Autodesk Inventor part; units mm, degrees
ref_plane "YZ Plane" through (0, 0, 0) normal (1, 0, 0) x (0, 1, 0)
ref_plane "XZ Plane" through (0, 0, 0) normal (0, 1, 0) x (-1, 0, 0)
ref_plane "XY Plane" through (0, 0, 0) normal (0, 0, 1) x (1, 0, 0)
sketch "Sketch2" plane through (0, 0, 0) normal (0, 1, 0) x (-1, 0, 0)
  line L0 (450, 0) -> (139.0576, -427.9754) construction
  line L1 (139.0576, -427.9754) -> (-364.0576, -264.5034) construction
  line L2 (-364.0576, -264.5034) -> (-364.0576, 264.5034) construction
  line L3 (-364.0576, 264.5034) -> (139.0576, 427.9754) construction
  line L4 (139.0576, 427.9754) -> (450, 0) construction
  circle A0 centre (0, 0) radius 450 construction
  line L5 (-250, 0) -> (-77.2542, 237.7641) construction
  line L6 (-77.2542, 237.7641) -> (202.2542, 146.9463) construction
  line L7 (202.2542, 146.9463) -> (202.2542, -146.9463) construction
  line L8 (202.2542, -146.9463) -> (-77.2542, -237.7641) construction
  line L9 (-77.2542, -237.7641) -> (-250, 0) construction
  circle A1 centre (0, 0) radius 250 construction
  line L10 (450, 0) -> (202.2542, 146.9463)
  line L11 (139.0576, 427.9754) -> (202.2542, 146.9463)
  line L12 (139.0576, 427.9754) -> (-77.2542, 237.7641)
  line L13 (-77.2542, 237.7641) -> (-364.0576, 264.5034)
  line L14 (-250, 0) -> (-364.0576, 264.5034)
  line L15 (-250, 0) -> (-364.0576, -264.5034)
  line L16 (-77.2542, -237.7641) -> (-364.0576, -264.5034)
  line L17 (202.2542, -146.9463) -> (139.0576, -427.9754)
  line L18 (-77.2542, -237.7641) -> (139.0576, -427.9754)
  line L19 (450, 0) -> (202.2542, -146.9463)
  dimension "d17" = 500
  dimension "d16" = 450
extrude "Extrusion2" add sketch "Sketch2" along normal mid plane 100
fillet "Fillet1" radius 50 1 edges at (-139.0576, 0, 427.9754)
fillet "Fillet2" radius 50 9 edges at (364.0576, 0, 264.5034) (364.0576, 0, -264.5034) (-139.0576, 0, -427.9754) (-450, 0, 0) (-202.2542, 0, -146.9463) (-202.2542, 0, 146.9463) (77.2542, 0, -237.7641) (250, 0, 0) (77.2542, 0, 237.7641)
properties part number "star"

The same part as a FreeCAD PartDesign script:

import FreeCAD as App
import Part
import Sketcher


def edges_at(feature, points):
    """Names of the edges that pass closest to the given points."""
    edges = feature.Shape.Edges
    near = lambda p: min(range(len(edges)), key=lambda i: edges[i].distToShape(Part.Vertex(*p))[0])
    return sorted({f"Edge{near(p) + 1}" for p in points})


def add_polygon(sketch, points):
    """Adds a closed chain of lines whose ends are joined by coincident constraints."""
    first, n = sketch.GeometryCount, len(points)
    for a, b in zip(points, points[1:] + points[:1]):
        sketch.addGeometry(Part.LineSegment(App.Vector(*a, 0), App.Vector(*b, 0)), False)
    for i in range(n):
        sketch.addConstraint(Sketcher.Constraint("Coincident", first + i, 2, first + (i + 1) % n, 1))

doc = App.newDocument("Part")
body = doc.addObject("PartDesign::Body", "Body")

# Sketch on XZ plane
sketch1 = body.newObject("Sketcher::SketchObject", "Sketch")
sketch1.AttachmentSupport = (doc.getObject("XZ_Plane"), [""])
sketch1.MapMode = "FlatFace"
add_polygon(sketch1, [(-202.2542, -146.9463), (-450, 0), (-202.2542, 146.9463), (-139.0576, 427.9754), (77.2542, 237.7641), (364.0576, 264.5034), (250, 0), (364.0576, -264.5034), (77.2542, -237.7641), (-139.0576, -427.9754)])  # lines 0-9
sketch1.addConstraint(Sketcher.Constraint("PointOnObject", 0, 2, -1))
sketch1.addConstraint(Sketcher.Constraint("PointOnObject", 5, 2, -1))
sketch1.addConstraint(Sketcher.Constraint("DistanceX", 0, 2, -1, 1, 450.0))
sketch1.addConstraint(Sketcher.Constraint("DistanceX", -1, 1, 5, 2, 250.0))
sketch1.addConstraint(Sketcher.Constraint("Distance", 3, 288.047))
sketch1.addConstraint(Sketcher.Constraint("Distance", 8, 288.047))
sketch1.addConstraint(Sketcher.Constraint("DistanceY", -1, 1, 3, 2, 237.764))
sketch1.addConstraint(Sketcher.Constraint("DistanceY", 7, 2, -1, 1, 237.764))
sketch1.addConstraint(Sketcher.Constraint("DistanceY", 1, 2, 2, 2, 281.029))
sketch1.addConstraint(Sketcher.Constraint("DistanceY", 4, 2, 2, 2, 163.472))
sketch1.addConstraint(Sketcher.Constraint("DistanceY", 8, 2, 6, 2, 163.472))
sketch1.addConstraint(Sketcher.Constraint("DistanceY", 8, 2, 9, 2, 281.029))
sketch1.addConstraint(Sketcher.Constraint("Distance", 0, 288.0472))
sketch1.addConstraint(Sketcher.Constraint("Distance", 1, 288.0472))
sketch1.addConstraint(Sketcher.Constraint("Distance", 2, 288.0472))
sketch1.addConstraint(Sketcher.Constraint("Distance", 4, 288.0472))
sketch1.addConstraint(Sketcher.Constraint("Distance", 5, 288.0472))
sketch1.addConstraint(Sketcher.Constraint("Distance", 6, 288.0472))
sketch1.addConstraint(Sketcher.Constraint("Distance", 7, 288.0472))
sketch1.addConstraint(Sketcher.Constraint("Distance", 9, 288.0472))
pad1 = body.newObject("PartDesign::Pad", "Pad")
pad1.Profile = sketch1
pad1.Length = 100
pad1.Midplane = True
doc.recompute()

fillet = body.newObject("PartDesign::Fillet", "Fillet")
fillet.Base = (pad1, edges_at(pad1, [(-139.058, 0, 427.975)]))
fillet.Radius = 50
doc.recompute()

fillet2 = body.newObject("PartDesign::Fillet", "Fillet001")
fillet2.Base = (fillet, edges_at(fillet, [
    (364.058, 0, 264.503),
    (364.058, 0, -264.503),
    (-139.058, 0, -427.975),
    (-450, 0, 0),
    (-202.254, 0, -146.946),
    (-202.254, 0, 146.946),
    (77.254, 0, -237.764),
    (250, 0, 0),
    (77.254, 0, 237.764),
]))
fillet2.Radius = 50

doc.recompute()
